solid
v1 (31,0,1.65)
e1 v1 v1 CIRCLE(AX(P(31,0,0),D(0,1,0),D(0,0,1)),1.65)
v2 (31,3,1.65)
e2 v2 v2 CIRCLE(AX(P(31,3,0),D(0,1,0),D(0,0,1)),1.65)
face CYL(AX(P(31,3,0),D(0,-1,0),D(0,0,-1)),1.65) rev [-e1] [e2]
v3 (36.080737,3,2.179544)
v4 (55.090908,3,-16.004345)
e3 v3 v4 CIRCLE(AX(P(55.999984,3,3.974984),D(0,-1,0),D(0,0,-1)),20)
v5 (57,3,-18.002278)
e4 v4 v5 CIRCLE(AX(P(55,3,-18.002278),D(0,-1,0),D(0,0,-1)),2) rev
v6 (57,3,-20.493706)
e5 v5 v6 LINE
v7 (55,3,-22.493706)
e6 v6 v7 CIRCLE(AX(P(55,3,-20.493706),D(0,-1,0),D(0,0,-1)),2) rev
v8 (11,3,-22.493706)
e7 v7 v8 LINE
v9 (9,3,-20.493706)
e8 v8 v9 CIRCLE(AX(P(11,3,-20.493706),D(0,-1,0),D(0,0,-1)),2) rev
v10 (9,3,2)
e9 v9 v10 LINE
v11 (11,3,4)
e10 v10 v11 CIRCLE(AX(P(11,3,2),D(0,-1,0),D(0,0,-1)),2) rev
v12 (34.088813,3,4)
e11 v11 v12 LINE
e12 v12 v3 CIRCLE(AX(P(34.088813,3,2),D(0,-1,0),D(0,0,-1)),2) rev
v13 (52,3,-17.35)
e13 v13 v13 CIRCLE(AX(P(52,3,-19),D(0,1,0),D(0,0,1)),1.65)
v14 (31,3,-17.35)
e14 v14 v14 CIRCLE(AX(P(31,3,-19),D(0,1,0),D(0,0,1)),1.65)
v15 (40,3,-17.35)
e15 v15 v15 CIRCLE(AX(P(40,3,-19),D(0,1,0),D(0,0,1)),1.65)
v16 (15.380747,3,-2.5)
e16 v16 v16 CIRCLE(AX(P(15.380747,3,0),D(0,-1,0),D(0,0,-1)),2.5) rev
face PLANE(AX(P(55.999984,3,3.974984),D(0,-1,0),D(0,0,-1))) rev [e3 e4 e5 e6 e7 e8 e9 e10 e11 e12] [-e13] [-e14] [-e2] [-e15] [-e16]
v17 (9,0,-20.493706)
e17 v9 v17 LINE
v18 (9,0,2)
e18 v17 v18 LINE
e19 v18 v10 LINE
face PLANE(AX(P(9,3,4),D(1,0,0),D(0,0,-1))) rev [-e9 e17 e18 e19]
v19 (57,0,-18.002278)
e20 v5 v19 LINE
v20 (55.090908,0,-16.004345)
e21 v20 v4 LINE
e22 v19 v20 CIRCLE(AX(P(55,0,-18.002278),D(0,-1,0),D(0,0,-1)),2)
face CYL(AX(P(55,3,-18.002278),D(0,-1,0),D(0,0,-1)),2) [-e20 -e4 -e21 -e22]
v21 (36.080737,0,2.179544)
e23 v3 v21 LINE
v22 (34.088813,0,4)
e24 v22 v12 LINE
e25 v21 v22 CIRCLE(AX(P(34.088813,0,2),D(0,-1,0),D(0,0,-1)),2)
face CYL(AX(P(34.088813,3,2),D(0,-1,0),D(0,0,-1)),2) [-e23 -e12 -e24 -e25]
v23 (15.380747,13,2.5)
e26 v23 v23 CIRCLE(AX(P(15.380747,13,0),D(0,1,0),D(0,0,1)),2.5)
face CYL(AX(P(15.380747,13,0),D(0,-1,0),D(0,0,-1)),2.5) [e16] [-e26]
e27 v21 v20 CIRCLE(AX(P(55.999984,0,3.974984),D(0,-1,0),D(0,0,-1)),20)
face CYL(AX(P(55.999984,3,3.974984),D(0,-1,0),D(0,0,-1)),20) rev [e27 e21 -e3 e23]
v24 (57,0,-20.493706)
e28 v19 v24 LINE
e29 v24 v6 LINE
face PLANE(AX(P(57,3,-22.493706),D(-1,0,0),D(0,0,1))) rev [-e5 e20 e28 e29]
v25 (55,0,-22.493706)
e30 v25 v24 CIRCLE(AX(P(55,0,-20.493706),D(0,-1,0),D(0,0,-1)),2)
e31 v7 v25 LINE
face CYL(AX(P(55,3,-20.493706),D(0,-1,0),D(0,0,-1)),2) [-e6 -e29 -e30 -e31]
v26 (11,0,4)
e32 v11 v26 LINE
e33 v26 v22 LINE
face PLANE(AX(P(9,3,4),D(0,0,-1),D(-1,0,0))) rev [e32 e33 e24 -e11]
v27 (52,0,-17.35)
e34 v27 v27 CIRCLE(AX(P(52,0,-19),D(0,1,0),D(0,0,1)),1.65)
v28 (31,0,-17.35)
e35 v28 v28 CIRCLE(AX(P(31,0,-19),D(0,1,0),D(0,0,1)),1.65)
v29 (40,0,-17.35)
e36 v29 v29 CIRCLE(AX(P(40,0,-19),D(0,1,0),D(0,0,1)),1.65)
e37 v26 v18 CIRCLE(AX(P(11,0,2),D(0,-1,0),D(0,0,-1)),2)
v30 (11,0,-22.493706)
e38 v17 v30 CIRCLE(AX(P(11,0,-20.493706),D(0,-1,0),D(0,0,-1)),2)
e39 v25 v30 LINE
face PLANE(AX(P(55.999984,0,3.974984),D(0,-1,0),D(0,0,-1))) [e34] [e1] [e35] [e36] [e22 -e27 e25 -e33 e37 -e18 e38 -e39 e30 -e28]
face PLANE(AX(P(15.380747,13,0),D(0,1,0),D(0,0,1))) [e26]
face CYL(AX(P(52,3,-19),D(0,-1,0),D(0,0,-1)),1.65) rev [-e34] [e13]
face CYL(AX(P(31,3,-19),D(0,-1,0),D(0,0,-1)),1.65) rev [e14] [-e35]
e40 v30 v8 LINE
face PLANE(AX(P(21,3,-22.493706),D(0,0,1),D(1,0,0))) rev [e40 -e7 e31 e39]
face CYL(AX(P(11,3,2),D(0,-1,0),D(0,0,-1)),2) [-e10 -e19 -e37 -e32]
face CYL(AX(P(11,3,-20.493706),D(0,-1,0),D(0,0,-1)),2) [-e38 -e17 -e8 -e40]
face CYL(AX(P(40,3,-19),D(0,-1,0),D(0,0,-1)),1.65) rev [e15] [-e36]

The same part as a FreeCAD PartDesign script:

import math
import FreeCAD as App
import Part
import Sketcher

V = App.Vector


def edges_at(feature, points):
    """Names of the edges that pass closest to the given points."""
    edges = feature.Shape.Edges
    near = lambda p: min(range(len(edges)), key=lambda i: edges[i].distToShape(Part.Vertex(*p))[0])
    return sorted({f"Edge{near(p) + 1}" for p in points})

doc = App.newDocument("Part")
body = doc.addObject("PartDesign::Body", "Body")

# Sketch on XZ plane
sketch1 = body.newObject("Sketcher::SketchObject", "Sketch")
sketch1.AttachmentSupport = (doc.getObject("XZ_Plane"), [""])
sketch1.MapMode = "FlatFace"
sketch1.addGeometry(Part.LineSegment(V(9, -22.5, 0), V(9, 4, 0)), False)
sketch1.addGeometry(Part.LineSegment(V(9, 4, 0), V(36, 4, 0)), False)
sketch1.addGeometry(Part.ArcOfCircle(Part.Circle(V(56, 4, 0), V(0, 0, 1), 20), math.radians(180), math.radians(273)), False)
sketch1.addGeometry(Part.LineSegment(V(57, -16, 0), V(57, -22.5, 0)), False)
sketch1.addGeometry(Part.LineSegment(V(57, -22.5, 0), V(9, -22.5, 0)), False)
sketch1.addGeometry(Part.Circle(V(31, 0, 0), V(0, 0, 1), 1.6), False)
sketch1.addGeometry(Part.Circle(V(52, -19, 0), V(0, 0, 1), 1.6), False)
sketch1.addGeometry(Part.Circle(V(40, -19, 0), V(0, 0, 1), 1.6), False)
sketch1.addGeometry(Part.Circle(V(31, -19, 0), V(0, 0, 1), 1.6), False)
sketch1.addConstraint(Sketcher.Constraint("Coincident", 0, 2, 1, 1))
sketch1.addConstraint(Sketcher.Constraint("Coincident", 1, 2, 2, 1))
sketch1.addConstraint(Sketcher.Constraint("Coincident", 2, 2, 3, 1))
sketch1.addConstraint(Sketcher.Constraint("Coincident", 3, 2, 4, 1))
sketch1.addConstraint(Sketcher.Constraint("Coincident", 4, 2, 0, 1))
sketch1.addConstraint(Sketcher.Constraint("Vertical", 0))
sketch1.addConstraint(Sketcher.Constraint("Horizontal", 1))
sketch1.addConstraint(Sketcher.Constraint("Vertical", 3))
sketch1.addConstraint(Sketcher.Constraint("Horizontal", 4))
sketch1.addConstraint(Sketcher.Constraint("Equal", 5, 6))
sketch1.addConstraint(Sketcher.Constraint("Equal", 6, 7))
sketch1.addConstraint(Sketcher.Constraint("Equal", 7, 8))
sketch1.addConstraint(Sketcher.Constraint("PointOnObject", 5, 3, -1))
sketch1.addConstraint(Sketcher.Constraint("Horizontal", 6, 3, 7, 3))
sketch1.addConstraint(Sketcher.Constraint("Horizontal", 7, 3, 8, 3))
sketch1.addConstraint(Sketcher.Constraint("Vertical", 5, 3, 8, 3))
sketch1.addConstraint(Sketcher.Constraint("Radius", 2, 20.0))
sketch1.addConstraint(Sketcher.Constraint("Diameter", 5, 3.3))
sketch1.addConstraint(Sketcher.Constraint("DistanceX", 1, 1, 1, 2, 27.0))
sketch1.addConstraint(Sketcher.Constraint("DistanceX", 4, 2, 4, 1, 48.0))
sketch1.addConstraint(Sketcher.Constraint("DistanceX", -1, 1, 5, 3, 31.0))
sketch1.addConstraint(Sketcher.Constraint("DistanceX", -1, 1, 6, 3, 52.0))
sketch1.addConstraint(Sketcher.Constraint("DistanceY", 6, 3, -1, 1, 19.0))
sketch1.addConstraint(Sketcher.Constraint("DistanceX", -1, 1, 7, 3, 40.0))
sketch1.addConstraint(Sketcher.Constraint("DistanceX", -1, 1, 0, 2, 9.0))
sketch1.addConstraint(Sketcher.Constraint("DistanceY", -1, 1, 0, 2, 4.0))
sketch1.addConstraint(Sketcher.Constraint("DistanceY", 2, 2, -1, 1, 16.0))
sketch1.addConstraint(Sketcher.Constraint("DistanceY", 0, 1, 0, 2, 26.493706))
pad1 = body.newObject("PartDesign::Pad", "Pad")
pad1.Profile = sketch1
pad1.Length = 3
pad1.Reversed = True

# Sketch on XZ plane
sketch2 = body.newObject("Sketcher::SketchObject", "Sketch001")
sketch2.AttachmentSupport = (doc.getObject("XZ_Plane"), [""])
sketch2.MapMode = "FlatFace"
sketch2.AttachmentOffset = App.Placement(V(0, 0, -3), App.Rotation())
sketch2.addGeometry(Part.Circle(V(15.4, 0, 0), V(0, 0, 1), 2.5), False)
sketch2.addConstraint(Sketcher.Constraint("PointOnObject", 0, 3, -1))
sketch2.addConstraint(Sketcher.Constraint("Diameter", 0, 5.0))
sketch2.addConstraint(Sketcher.Constraint("DistanceX", -1, 1, 0, 3, 15.380747))
pad2 = body.newObject("PartDesign::Pad", "Pad001")
pad2.Profile = sketch2
pad2.Length = 10
pad2.Reversed = True
doc.recompute()

fillet = body.newObject("PartDesign::Fillet", "Fillet")
fillet.Base = (pad2, edges_at(pad2, [
    (57, 1.5, -22.494),
    (57, 1.5, -16),
    (36, 1.5, 4),
    (9, 1.5, 4),
    (9, 1.5, -22.494),
]))
fillet.Radius = 2

doc.recompute()
